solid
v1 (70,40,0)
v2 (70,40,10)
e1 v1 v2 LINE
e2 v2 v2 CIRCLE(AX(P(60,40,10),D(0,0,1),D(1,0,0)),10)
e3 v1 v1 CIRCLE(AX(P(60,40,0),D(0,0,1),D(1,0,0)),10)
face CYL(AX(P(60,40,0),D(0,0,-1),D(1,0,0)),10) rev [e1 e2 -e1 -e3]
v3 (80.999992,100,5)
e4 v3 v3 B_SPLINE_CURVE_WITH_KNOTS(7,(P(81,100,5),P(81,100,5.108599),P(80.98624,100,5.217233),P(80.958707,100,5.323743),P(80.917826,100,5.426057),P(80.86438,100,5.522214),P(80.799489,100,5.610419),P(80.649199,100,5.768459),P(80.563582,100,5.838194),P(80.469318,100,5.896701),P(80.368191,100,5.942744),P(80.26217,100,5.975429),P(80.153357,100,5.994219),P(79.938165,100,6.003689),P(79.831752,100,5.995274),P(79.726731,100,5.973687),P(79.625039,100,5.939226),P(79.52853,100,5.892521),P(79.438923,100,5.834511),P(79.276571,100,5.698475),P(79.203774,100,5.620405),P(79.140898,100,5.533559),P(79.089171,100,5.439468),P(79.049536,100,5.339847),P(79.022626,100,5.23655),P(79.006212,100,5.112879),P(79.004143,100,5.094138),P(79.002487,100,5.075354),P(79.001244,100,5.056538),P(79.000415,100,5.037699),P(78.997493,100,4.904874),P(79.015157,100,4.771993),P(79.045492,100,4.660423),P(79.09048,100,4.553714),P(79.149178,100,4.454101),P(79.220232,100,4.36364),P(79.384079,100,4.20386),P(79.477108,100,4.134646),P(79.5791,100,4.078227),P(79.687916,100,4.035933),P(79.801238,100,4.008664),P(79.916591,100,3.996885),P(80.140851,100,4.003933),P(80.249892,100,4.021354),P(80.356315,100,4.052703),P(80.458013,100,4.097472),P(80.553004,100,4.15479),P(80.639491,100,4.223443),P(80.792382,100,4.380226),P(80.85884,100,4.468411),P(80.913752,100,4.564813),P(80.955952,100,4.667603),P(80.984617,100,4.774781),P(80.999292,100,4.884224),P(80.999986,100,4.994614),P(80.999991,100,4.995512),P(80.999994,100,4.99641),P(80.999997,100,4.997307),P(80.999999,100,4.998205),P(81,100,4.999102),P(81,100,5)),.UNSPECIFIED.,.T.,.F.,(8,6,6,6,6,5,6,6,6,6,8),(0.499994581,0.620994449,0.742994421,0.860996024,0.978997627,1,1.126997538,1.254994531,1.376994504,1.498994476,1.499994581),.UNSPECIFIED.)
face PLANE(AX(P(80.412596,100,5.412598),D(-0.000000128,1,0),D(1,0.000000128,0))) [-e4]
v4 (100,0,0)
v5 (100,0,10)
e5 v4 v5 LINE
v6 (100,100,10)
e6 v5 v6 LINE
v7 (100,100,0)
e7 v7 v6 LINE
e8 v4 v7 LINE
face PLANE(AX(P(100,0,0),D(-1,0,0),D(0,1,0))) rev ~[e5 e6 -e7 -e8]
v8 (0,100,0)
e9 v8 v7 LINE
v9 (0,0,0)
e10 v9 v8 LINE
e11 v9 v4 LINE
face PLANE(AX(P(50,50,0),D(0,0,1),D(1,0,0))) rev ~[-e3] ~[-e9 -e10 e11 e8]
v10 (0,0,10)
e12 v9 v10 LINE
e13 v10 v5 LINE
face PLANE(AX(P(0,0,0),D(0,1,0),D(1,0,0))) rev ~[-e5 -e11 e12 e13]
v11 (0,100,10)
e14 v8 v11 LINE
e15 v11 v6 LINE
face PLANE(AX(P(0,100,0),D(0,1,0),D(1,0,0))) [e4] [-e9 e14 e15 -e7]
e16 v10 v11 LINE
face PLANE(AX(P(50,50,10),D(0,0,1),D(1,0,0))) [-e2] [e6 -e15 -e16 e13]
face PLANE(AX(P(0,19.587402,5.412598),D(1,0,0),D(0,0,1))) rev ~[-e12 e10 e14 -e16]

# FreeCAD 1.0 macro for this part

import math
import FreeCAD as App
import Part
import Sketcher


def add_polygon(sketch, points):
    """Adds a closed chain of lines whose ends are joined by coincident constraints."""
    first, n = sketch.GeometryCount, len(points)
    for a, b in zip(points, points[1:] + points[:1]):
        sketch.addGeometry(Part.LineSegment(App.Vector(*a, 0), App.Vector(*b, 0)), False)
    for i in range(n):
        sketch.addConstraint(Sketcher.Constraint("Coincident", first + i, 2, first + (i + 1) % n, 1))

doc = App.newDocument("Part")
params = doc.addObject("Spreadsheet::Sheet", "Params")
for row, (alias, value) in enumerate([
    ("sketch1_diameter", "20 mm"),
    ("sketch1_width", "100 mm"),
    ("pad1_length", "10 mm"),
    ("sketch2_diameter", "2 mm"),
    ("sketch3_radius", "19.999999 mm"),
    ("sketch3_width", "70 mm"),
    ("sketch4_radius", "0.999999 mm"),
    ("sketch5_radius", "19.999999 mm"),
    ("sketch5_width", "60 mm"),
    ("sketch6_radius", "0.999999 mm"),
    ("sketch7_radius", "19.999999 mm"),
    ("sketch7_width", "60 mm"),
    ("sketch8_radius", "0.999999 mm"),
    ("sketch9_radius", "19.999999 mm"),
    ("sketch9_width", "60 mm"),
    ("sketch10_radius", "0.999999 mm"),
    ("sketch11_radius", "19.999999 mm"),
    ("sketch11_width", "60 mm"),
], start=1):
    params.set(f"A{row}", alias)
    params.set(f"B{row}", "=" + value)
    params.setAlias(f"B{row}", alias)

body = doc.addObject("PartDesign::Body", "Body")

# Sketch on XY plane
sketch1 = body.newObject("Sketcher::SketchObject", "Sketch")
sketch1.AttachmentSupport = (doc.getObject("XY_Plane"), [""])
sketch1.MapMode = "FlatFace"
add_polygon(sketch1, [(0, 100), (0, 0), (100, 0), (100, 100)])  # lines 0-3
sketch1.addGeometry(Part.Circle(App.Vector(60, 40, 0), App.Vector(0, 0, 1), 10), False)  # 4
sketch1.addConstraint(Sketcher.Constraint("Vertical", 0))
sketch1.addConstraint(Sketcher.Constraint("Horizontal", 1))
sketch1.addConstraint(Sketcher.Constraint("Vertical", 2))
sketch1.addConstraint(Sketcher.Constraint("Horizontal", 3))
sketch1.addConstraint(Sketcher.Constraint("Coincident", 0, 2, -1, 1))
sketch1.addConstraint(Sketcher.Constraint("Equal", 3, 0))
sketch1.addConstraint(Sketcher.Constraint("Diameter", 4, 20.0))
sketch1.addConstraint(Sketcher.Constraint("DistanceX", 1, 1, 1, 2, 100.0))
sketch1.addConstraint(Sketcher.Constraint("DistanceX", -1, 1, 4, 3, 60.0))
sketch1.addConstraint(Sketcher.Constraint("DistanceY", -1, 1, 4, 3, 40.0))
sketch1.setExpression("Constraints[10]", "Params.sketch1_diameter")
sketch1.setExpression("Constraints[11]", "Params.sketch1_width")
pad1 = body.newObject("PartDesign::Pad", "Pad")
pad1.Profile = sketch1
pad1.setExpression("Length", "Params.pad1_length")

# Sketch on YZ plane
sketch2 = body.newObject("Sketcher::SketchObject", "Sketch001")
sketch2.AttachmentSupport = (doc.getObject("YZ_Plane"), [""])
sketch2.MapMode = "FlatFace"
sketch2.addGeometry(Part.Circle(App.Vector(20, 5, 0), App.Vector(0, 0, 1), 1), False)
sketch2.addConstraint(Sketcher.Constraint("Diameter", 0, 2.0))
sketch2.addConstraint(Sketcher.Constraint("DistanceX", -1, 1, 0, 3, 20.0))
sketch2.addConstraint(Sketcher.Constraint("DistanceY", -1, 1, 0, 3, 5.0))
sketch2.setExpression("Constraints[0]", "Params.sketch2_diameter")

# Sketch on XY plane
sketch3 = body.newObject("Sketcher::SketchObject", "Sketch002")
sketch3.AttachmentSupport = (doc.getObject("XY_Plane"), [""])
sketch3.MapMode = "FlatFace"
sketch3.AttachmentOffset = App.Placement(App.Vector(0, 0, 5), App.Rotation())
sketch3.addGeometry(Part.LineSegment(App.Vector(-10, 20, 0), App.Vector(60, 20, 0)), False)
sketch3.addGeometry(Part.ArcOfCircle(Part.Circle(App.Vector(60, 40, 0), App.Vector(0, 0, 1), 20), math.radians(-90), math.radians(0)), False)
sketch3.addGeometry(Part.LineSegment(App.Vector(80, 40, 0), App.Vector(80, 110, 0)), False)
sketch3.addConstraint(Sketcher.Constraint("Tangent", 0, 2, 1, 1))
sketch3.addConstraint(Sketcher.Constraint("Tangent", 1, 2, 2, 1))
sketch3.addConstraint(Sketcher.Constraint("Horizontal", 0))
sketch3.addConstraint(Sketcher.Constraint("Vertical", 2))
sketch3.addConstraint(Sketcher.Constraint("Equal", 0, 2))
sketch3.addConstraint(Sketcher.Constraint("Radius", 1, 19.999999))
sketch3.addConstraint(Sketcher.Constraint("DistanceX", 0, 1, 0, 2, 70.0))
sketch3.addConstraint(Sketcher.Constraint("DistanceX", -1, 1, 1, 3, 60.000001))
sketch3.addConstraint(Sketcher.Constraint("DistanceY", -1, 1, 1, 3, 39.999999))
sketch3.setExpression("Constraints[5]", "Params.sketch3_radius")
sketch3.setExpression("Constraints[6]", "Params.sketch3_width")
doc.recompute()

subtractivepipe = body.newObject("PartDesign::SubtractivePipe", "SubtractivePipe")
subtractivepipe.Profile = sketch2
subtractivepipe.Spine = (sketch3, ["Edge1", "Edge2", "Edge3"])

# Sketch on YZ plane
sketch4 = body.newObject("Sketcher::SketchObject", "Sketch003")
sketch4.AttachmentSupport = (doc.getObject("YZ_Plane"), [""])
sketch4.MapMode = "FlatFace"
sketch4.addGeometry(Part.ArcOfCircle(Part.Circle(App.Vector(20, 5, 0), App.Vector(0, 0, 1), 1), math.radians(-90), math.radians(0)), False)
sketch4.addGeometry(Part.LineSegment(App.Vector(21, 5, 0), App.Vector(20, 5, 0)), False)
sketch4.addGeometry(Part.LineSegment(App.Vector(20, 5, 0), App.Vector(20, 4, 0)), False)
sketch4.addConstraint(Sketcher.Constraint("Coincident", 0, 2, 1, 1))
sketch4.addConstraint(Sketcher.Constraint("Coincident", 1, 2, 2, 1))
sketch4.addConstraint(Sketcher.Constraint("Coincident", 2, 2, 0, 1))
sketch4.addConstraint(Sketcher.Constraint("Horizontal", 1))
sketch4.addConstraint(Sketcher.Constraint("Vertical", 2))
sketch4.addConstraint(Sketcher.Constraint("Coincident", 1, 2, 0, 3))
sketch4.addConstraint(Sketcher.Constraint("Radius", 0, 0.999999))
sketch4.addConstraint(Sketcher.Constraint("DistanceX", -1, 1, 0, 3, 20.000001))
sketch4.addConstraint(Sketcher.Constraint("DistanceY", -1, 1, 0, 3, 4.999999))
sketch4.setExpression("Constraints[6]", "Params.sketch4_radius")

# Sketch on XY plane
sketch5 = body.newObject("Sketcher::SketchObject", "Sketch004")
sketch5.AttachmentSupport = (doc.getObject("XY_Plane"), [""])
sketch5.MapMode = "FlatFace"
sketch5.AttachmentOffset = App.Placement(App.Vector(0, 0, 5), App.Rotation())
sketch5.addGeometry(Part.LineSegment(App.Vector(0, 20, 0), App.Vector(60, 20, 0)), False)
sketch5.addGeometry(Part.ArcOfCircle(Part.Circle(App.Vector(60, 40, 0), App.Vector(0, 0, 1), 20), math.radians(-90), math.radians(0)), False)
sketch5.addGeometry(Part.LineSegment(App.Vector(80, 40, 0), App.Vector(80, 100, 0)), False)
sketch5.addConstraint(Sketcher.Constraint("Tangent", 0, 2, 1, 1))
sketch5.addConstraint(Sketcher.Constraint("Tangent", 1, 2, 2, 1))
sketch5.addConstraint(Sketcher.Constraint("Horizontal", 0))
sketch5.addConstraint(Sketcher.Constraint("Vertical", 2))
sketch5.addConstraint(Sketcher.Constraint("PointOnObject", 0, 1, -2))
sketch5.addConstraint(Sketcher.Constraint("Equal", 0, 2))
sketch5.addConstraint(Sketcher.Constraint("Radius", 1, 19.999999))
sketch5.addConstraint(Sketcher.Constraint("DistanceX", 0, 1, 0, 2, 60.0))
sketch5.addConstraint(Sketcher.Constraint("DistanceY", -1, 1, 1, 3, 39.999999))
sketch5.setExpression("Constraints[6]", "Params.sketch5_radius")
sketch5.setExpression("Constraints[7]", "Params.sketch5_width")
doc.recompute()

additivepipe = body.newObject("PartDesign::AdditivePipe", "AdditivePipe")
additivepipe.Profile = sketch4
additivepipe.Spine = (sketch5, ["Edge1", "Edge2", "Edge3"])

# Sketch on YZ plane
sketch6 = body.newObject("Sketcher::SketchObject", "Sketch005")
sketch6.AttachmentSupport = (doc.getObject("YZ_Plane"), [""])
sketch6.MapMode = "FlatFace"
sketch6.addGeometry(Part.ArcOfCircle(Part.Circle(App.Vector(20, 5, 0), App.Vector(0, 0, 1), 1), math.radians(0), math.radians(90)), False)
sketch6.addGeometry(Part.LineSegment(App.Vector(20, 6, 0), App.Vector(20, 5, 0)), False)
sketch6.addGeometry(Part.LineSegment(App.Vector(20, 5, 0), App.Vector(21, 5, 0)), False)
sketch6.addConstraint(Sketcher.Constraint("Coincident", 0, 2, 1, 1))
sketch6.addConstraint(Sketcher.Constraint("Coincident", 1, 2, 2, 1))
sketch6.addConstraint(Sketcher.Constraint("Coincident", 2, 2, 0, 1))
sketch6.addConstraint(Sketcher.Constraint("Vertical", 1))
sketch6.addConstraint(Sketcher.Constraint("Horizontal", 2))
sketch6.addConstraint(Sketcher.Constraint("Coincident", 1, 2, 0, 3))
sketch6.addConstraint(Sketcher.Constraint("Radius", 0, 0.999999))
sketch6.addConstraint(Sketcher.Constraint("DistanceX", -1, 1, 0, 3, 20.000001))
sketch6.addConstraint(Sketcher.Constraint("DistanceY", -1, 1, 0, 3, 5.000001))
sketch6.setExpression("Constraints[6]", "Params.sketch6_radius")

# Sketch on XY plane
sketch7 = body.newObject("Sketcher::SketchObject", "Sketch006")
sketch7.AttachmentSupport = (doc.getObject("XY_Plane"), [""])
sketch7.MapMode = "FlatFace"
sketch7.AttachmentOffset = App.Placement(App.Vector(0, 0, 5), App.Rotation())
sketch7.addGeometry(Part.LineSegment(App.Vector(0, 20, 0), App.Vector(60, 20, 0)), False)
sketch7.addGeometry(Part.ArcOfCircle(Part.Circle(App.Vector(60, 40, 0), App.Vector(0, 0, 1), 20), math.radians(-90), math.radians(0)), False)
sketch7.addGeometry(Part.LineSegment(App.Vector(80, 40, 0), App.Vector(80, 100, 0)), False)
sketch7.addConstraint(Sketcher.Constraint("Tangent", 0, 2, 1, 1))
sketch7.addConstraint(Sketcher.Constraint("Tangent", 1, 2, 2, 1))
sketch7.addConstraint(Sketcher.Constraint("Horizontal", 0))
sketch7.addConstraint(Sketcher.Constraint("Vertical", 2))
sketch7.addConstraint(Sketcher.Constraint("PointOnObject", 0, 1, -2))
sketch7.addConstraint(Sketcher.Constraint("Equal", 0, 2))
sketch7.addConstraint(Sketcher.Constraint("Radius", 1, 19.999999))
sketch7.addConstraint(Sketcher.Constraint("DistanceX", 0, 1, 0, 2, 60.0))
sketch7.addConstraint(Sketcher.Constraint("DistanceY", -1, 1, 1, 3, 39.999999))
sketch7.setExpression("Constraints[6]", "Params.sketch7_radius")
sketch7.setExpression("Constraints[7]", "Params.sketch7_width")
doc.recompute()

additivepipe2 = body.newObject("PartDesign::AdditivePipe", "AdditivePipe001")
additivepipe2.Profile = sketch6
additivepipe2.Spine = (sketch7, ["Edge1", "Edge2", "Edge3"])

# Sketch on YZ plane
sketch8 = body.newObject("Sketcher::SketchObject", "Sketch007")
sketch8.AttachmentSupport = (doc.getObject("YZ_Plane"), [""])
sketch8.MapMode = "FlatFace"
sketch8.addGeometry(Part.ArcOfCircle(Part.Circle(App.Vector(20, 5, 0), App.Vector(0, 0, 1), 1), math.radians(180), math.radians(270)), False)
sketch8.addGeometry(Part.LineSegment(App.Vector(20, 4, 0), App.Vector(20, 5, 0)), False)
sketch8.addGeometry(Part.LineSegment(App.Vector(20, 5, 0), App.Vector(19, 5, 0)), False)
sketch8.addConstraint(Sketcher.Constraint("Coincident", 0, 2, 1, 1))
sketch8.addConstraint(Sketcher.Constraint("Coincident", 1, 2, 2, 1))
sketch8.addConstraint(Sketcher.Constraint("Coincident", 2, 2, 0, 1))
sketch8.addConstraint(Sketcher.Constraint("Vertical", 1))
sketch8.addConstraint(Sketcher.Constraint("Horizontal", 2))
sketch8.addConstraint(Sketcher.Constraint("Coincident", 1, 2, 0, 3))
sketch8.addConstraint(Sketcher.Constraint("Radius", 0, 0.999999))
sketch8.addConstraint(Sketcher.Constraint("DistanceX", -1, 1, 0, 3, 19.999999))
sketch8.addConstraint(Sketcher.Constraint("DistanceY", -1, 1, 0, 3, 4.999999))
sketch8.setExpression("Constraints[6]", "Params.sketch8_radius")

# Sketch on XY plane
sketch9 = body.newObject("Sketcher::SketchObject", "Sketch008")
sketch9.AttachmentSupport = (doc.getObject("XY_Plane"), [""])
sketch9.MapMode = "FlatFace"
sketch9.AttachmentOffset = App.Placement(App.Vector(0, 0, 5), App.Rotation())
sketch9.addGeometry(Part.LineSegment(App.Vector(0, 20, 0), App.Vector(60, 20, 0)), False)
sketch9.addGeometry(Part.ArcOfCircle(Part.Circle(App.Vector(60, 40, 0), App.Vector(0, 0, 1), 20), math.radians(-90), math.radians(0)), False)
sketch9.addGeometry(Part.LineSegment(App.Vector(80, 40, 0), App.Vector(80, 100, 0)), False)
sketch9.addConstraint(Sketcher.Constraint("Tangent", 0, 2, 1, 1))
sketch9.addConstraint(Sketcher.Constraint("Tangent", 1, 2, 2, 1))
sketch9.addConstraint(Sketcher.Constraint("Horizontal", 0))
sketch9.addConstraint(Sketcher.Constraint("Vertical", 2))
sketch9.addConstraint(Sketcher.Constraint("PointOnObject", 0, 1, -2))
sketch9.addConstraint(Sketcher.Constraint("Equal", 0, 2))
sketch9.addConstraint(Sketcher.Constraint("Radius", 1, 19.999999))
sketch9.addConstraint(Sketcher.Constraint("DistanceX", 0, 1, 0, 2, 60.0))
sketch9.addConstraint(Sketcher.Constraint("DistanceY", -1, 1, 1, 3, 39.999999))
sketch9.setExpression("Constraints[6]", "Params.sketch9_radius")
sketch9.setExpression("Constraints[7]", "Params.sketch9_width")
doc.recompute()

additivepipe3 = body.newObject("PartDesign::AdditivePipe", "AdditivePipe002")
additivepipe3.Profile = sketch8
additivepipe3.Spine = (sketch9, ["Edge1", "Edge2", "Edge3"])

# Sketch on YZ plane
sketch10 = body.newObject("Sketcher::SketchObject", "Sketch009")
sketch10.AttachmentSupport = (doc.getObject("YZ_Plane"), [""])
sketch10.MapMode = "FlatFace"
sketch10.addGeometry(Part.ArcOfCircle(Part.Circle(App.Vector(20, 5, 0), App.Vector(0, 0, 1), 1), math.radians(90), math.radians(180)), False)
sketch10.addGeometry(Part.LineSegment(App.Vector(19, 5, 0), App.Vector(20, 5, 0)), False)
sketch10.addGeometry(Part.LineSegment(App.Vector(20, 5, 0), App.Vector(20, 6, 0)), False)
sketch10.addConstraint(Sketcher.Constraint("Coincident", 0, 2, 1, 1))
sketch10.addConstraint(Sketcher.Constraint("Coincident", 1, 2, 2, 1))
sketch10.addConstraint(Sketcher.Constraint("Coincident", 2, 2, 0, 1))
sketch10.addConstraint(Sketcher.Constraint("Horizontal", 1))
sketch10.addConstraint(Sketcher.Constraint("Vertical", 2))
sketch10.addConstraint(Sketcher.Constraint("Coincident", 1, 2, 0, 3))
sketch10.addConstraint(Sketcher.Constraint("Radius", 0, 0.999999))
sketch10.addConstraint(Sketcher.Constraint("DistanceX", -1, 1, 0, 3, 19.999999))
sketch10.addConstraint(Sketcher.Constraint("DistanceY", -1, 1, 0, 3, 5.000001))
sketch10.setExpression("Constraints[6]", "Params.sketch10_radius")

# Sketch on XY plane
sketch11 = body.newObject("Sketcher::SketchObject", "Sketch010")
sketch11.AttachmentSupport = (doc.getObject("XY_Plane"), [""])
sketch11.MapMode = "FlatFace"
sketch11.AttachmentOffset = App.Placement(App.Vector(0, 0, 5), App.Rotation())
sketch11.addGeometry(Part.LineSegment(App.Vector(0, 20, 0), App.Vector(60, 20, 0)), False)
sketch11.addGeometry(Part.ArcOfCircle(Part.Circle(App.Vector(60, 40, 0), App.Vector(0, 0, 1), 20), math.radians(-90), math.radians(0)), False)
sketch11.addGeometry(Part.LineSegment(App.Vector(80, 40, 0), App.Vector(80, 100, 0)), False)
sketch11.addConstraint(Sketcher.Constraint("Tangent", 0, 2, 1, 1))
sketch11.addConstraint(Sketcher.Constraint("Tangent", 1, 2, 2, 1))
sketch11.addConstraint(Sketcher.Constraint("Horizontal", 0))
sketch11.addConstraint(Sketcher.Constraint("Vertical", 2))
sketch11.addConstraint(Sketcher.Constraint("PointOnObject", 0, 1, -2))
sketch11.addConstraint(Sketcher.Constraint("Equal", 0, 2))
sketch11.addConstraint(Sketcher.Constraint("Radius", 1, 19.999999))
sketch11.addConstraint(Sketcher.Constraint("DistanceX", 0, 1, 0, 2, 60.0))
sketch11.addConstraint(Sketcher.Constraint("DistanceY", -1, 1, 1, 3, 39.999999))
sketch11.setExpression("Constraints[6]", "Params.sketch11_radius")
sketch11.setExpression("Constraints[7]", "Params.sketch11_width")
doc.recompute()

additivepipe4 = body.newObject("PartDesign::AdditivePipe", "AdditivePipe003")
additivepipe4.Profile = sketch10
additivepipe4.Spine = (sketch11, ["Edge1", "Edge2", "Edge3"])

doc.recompute()
